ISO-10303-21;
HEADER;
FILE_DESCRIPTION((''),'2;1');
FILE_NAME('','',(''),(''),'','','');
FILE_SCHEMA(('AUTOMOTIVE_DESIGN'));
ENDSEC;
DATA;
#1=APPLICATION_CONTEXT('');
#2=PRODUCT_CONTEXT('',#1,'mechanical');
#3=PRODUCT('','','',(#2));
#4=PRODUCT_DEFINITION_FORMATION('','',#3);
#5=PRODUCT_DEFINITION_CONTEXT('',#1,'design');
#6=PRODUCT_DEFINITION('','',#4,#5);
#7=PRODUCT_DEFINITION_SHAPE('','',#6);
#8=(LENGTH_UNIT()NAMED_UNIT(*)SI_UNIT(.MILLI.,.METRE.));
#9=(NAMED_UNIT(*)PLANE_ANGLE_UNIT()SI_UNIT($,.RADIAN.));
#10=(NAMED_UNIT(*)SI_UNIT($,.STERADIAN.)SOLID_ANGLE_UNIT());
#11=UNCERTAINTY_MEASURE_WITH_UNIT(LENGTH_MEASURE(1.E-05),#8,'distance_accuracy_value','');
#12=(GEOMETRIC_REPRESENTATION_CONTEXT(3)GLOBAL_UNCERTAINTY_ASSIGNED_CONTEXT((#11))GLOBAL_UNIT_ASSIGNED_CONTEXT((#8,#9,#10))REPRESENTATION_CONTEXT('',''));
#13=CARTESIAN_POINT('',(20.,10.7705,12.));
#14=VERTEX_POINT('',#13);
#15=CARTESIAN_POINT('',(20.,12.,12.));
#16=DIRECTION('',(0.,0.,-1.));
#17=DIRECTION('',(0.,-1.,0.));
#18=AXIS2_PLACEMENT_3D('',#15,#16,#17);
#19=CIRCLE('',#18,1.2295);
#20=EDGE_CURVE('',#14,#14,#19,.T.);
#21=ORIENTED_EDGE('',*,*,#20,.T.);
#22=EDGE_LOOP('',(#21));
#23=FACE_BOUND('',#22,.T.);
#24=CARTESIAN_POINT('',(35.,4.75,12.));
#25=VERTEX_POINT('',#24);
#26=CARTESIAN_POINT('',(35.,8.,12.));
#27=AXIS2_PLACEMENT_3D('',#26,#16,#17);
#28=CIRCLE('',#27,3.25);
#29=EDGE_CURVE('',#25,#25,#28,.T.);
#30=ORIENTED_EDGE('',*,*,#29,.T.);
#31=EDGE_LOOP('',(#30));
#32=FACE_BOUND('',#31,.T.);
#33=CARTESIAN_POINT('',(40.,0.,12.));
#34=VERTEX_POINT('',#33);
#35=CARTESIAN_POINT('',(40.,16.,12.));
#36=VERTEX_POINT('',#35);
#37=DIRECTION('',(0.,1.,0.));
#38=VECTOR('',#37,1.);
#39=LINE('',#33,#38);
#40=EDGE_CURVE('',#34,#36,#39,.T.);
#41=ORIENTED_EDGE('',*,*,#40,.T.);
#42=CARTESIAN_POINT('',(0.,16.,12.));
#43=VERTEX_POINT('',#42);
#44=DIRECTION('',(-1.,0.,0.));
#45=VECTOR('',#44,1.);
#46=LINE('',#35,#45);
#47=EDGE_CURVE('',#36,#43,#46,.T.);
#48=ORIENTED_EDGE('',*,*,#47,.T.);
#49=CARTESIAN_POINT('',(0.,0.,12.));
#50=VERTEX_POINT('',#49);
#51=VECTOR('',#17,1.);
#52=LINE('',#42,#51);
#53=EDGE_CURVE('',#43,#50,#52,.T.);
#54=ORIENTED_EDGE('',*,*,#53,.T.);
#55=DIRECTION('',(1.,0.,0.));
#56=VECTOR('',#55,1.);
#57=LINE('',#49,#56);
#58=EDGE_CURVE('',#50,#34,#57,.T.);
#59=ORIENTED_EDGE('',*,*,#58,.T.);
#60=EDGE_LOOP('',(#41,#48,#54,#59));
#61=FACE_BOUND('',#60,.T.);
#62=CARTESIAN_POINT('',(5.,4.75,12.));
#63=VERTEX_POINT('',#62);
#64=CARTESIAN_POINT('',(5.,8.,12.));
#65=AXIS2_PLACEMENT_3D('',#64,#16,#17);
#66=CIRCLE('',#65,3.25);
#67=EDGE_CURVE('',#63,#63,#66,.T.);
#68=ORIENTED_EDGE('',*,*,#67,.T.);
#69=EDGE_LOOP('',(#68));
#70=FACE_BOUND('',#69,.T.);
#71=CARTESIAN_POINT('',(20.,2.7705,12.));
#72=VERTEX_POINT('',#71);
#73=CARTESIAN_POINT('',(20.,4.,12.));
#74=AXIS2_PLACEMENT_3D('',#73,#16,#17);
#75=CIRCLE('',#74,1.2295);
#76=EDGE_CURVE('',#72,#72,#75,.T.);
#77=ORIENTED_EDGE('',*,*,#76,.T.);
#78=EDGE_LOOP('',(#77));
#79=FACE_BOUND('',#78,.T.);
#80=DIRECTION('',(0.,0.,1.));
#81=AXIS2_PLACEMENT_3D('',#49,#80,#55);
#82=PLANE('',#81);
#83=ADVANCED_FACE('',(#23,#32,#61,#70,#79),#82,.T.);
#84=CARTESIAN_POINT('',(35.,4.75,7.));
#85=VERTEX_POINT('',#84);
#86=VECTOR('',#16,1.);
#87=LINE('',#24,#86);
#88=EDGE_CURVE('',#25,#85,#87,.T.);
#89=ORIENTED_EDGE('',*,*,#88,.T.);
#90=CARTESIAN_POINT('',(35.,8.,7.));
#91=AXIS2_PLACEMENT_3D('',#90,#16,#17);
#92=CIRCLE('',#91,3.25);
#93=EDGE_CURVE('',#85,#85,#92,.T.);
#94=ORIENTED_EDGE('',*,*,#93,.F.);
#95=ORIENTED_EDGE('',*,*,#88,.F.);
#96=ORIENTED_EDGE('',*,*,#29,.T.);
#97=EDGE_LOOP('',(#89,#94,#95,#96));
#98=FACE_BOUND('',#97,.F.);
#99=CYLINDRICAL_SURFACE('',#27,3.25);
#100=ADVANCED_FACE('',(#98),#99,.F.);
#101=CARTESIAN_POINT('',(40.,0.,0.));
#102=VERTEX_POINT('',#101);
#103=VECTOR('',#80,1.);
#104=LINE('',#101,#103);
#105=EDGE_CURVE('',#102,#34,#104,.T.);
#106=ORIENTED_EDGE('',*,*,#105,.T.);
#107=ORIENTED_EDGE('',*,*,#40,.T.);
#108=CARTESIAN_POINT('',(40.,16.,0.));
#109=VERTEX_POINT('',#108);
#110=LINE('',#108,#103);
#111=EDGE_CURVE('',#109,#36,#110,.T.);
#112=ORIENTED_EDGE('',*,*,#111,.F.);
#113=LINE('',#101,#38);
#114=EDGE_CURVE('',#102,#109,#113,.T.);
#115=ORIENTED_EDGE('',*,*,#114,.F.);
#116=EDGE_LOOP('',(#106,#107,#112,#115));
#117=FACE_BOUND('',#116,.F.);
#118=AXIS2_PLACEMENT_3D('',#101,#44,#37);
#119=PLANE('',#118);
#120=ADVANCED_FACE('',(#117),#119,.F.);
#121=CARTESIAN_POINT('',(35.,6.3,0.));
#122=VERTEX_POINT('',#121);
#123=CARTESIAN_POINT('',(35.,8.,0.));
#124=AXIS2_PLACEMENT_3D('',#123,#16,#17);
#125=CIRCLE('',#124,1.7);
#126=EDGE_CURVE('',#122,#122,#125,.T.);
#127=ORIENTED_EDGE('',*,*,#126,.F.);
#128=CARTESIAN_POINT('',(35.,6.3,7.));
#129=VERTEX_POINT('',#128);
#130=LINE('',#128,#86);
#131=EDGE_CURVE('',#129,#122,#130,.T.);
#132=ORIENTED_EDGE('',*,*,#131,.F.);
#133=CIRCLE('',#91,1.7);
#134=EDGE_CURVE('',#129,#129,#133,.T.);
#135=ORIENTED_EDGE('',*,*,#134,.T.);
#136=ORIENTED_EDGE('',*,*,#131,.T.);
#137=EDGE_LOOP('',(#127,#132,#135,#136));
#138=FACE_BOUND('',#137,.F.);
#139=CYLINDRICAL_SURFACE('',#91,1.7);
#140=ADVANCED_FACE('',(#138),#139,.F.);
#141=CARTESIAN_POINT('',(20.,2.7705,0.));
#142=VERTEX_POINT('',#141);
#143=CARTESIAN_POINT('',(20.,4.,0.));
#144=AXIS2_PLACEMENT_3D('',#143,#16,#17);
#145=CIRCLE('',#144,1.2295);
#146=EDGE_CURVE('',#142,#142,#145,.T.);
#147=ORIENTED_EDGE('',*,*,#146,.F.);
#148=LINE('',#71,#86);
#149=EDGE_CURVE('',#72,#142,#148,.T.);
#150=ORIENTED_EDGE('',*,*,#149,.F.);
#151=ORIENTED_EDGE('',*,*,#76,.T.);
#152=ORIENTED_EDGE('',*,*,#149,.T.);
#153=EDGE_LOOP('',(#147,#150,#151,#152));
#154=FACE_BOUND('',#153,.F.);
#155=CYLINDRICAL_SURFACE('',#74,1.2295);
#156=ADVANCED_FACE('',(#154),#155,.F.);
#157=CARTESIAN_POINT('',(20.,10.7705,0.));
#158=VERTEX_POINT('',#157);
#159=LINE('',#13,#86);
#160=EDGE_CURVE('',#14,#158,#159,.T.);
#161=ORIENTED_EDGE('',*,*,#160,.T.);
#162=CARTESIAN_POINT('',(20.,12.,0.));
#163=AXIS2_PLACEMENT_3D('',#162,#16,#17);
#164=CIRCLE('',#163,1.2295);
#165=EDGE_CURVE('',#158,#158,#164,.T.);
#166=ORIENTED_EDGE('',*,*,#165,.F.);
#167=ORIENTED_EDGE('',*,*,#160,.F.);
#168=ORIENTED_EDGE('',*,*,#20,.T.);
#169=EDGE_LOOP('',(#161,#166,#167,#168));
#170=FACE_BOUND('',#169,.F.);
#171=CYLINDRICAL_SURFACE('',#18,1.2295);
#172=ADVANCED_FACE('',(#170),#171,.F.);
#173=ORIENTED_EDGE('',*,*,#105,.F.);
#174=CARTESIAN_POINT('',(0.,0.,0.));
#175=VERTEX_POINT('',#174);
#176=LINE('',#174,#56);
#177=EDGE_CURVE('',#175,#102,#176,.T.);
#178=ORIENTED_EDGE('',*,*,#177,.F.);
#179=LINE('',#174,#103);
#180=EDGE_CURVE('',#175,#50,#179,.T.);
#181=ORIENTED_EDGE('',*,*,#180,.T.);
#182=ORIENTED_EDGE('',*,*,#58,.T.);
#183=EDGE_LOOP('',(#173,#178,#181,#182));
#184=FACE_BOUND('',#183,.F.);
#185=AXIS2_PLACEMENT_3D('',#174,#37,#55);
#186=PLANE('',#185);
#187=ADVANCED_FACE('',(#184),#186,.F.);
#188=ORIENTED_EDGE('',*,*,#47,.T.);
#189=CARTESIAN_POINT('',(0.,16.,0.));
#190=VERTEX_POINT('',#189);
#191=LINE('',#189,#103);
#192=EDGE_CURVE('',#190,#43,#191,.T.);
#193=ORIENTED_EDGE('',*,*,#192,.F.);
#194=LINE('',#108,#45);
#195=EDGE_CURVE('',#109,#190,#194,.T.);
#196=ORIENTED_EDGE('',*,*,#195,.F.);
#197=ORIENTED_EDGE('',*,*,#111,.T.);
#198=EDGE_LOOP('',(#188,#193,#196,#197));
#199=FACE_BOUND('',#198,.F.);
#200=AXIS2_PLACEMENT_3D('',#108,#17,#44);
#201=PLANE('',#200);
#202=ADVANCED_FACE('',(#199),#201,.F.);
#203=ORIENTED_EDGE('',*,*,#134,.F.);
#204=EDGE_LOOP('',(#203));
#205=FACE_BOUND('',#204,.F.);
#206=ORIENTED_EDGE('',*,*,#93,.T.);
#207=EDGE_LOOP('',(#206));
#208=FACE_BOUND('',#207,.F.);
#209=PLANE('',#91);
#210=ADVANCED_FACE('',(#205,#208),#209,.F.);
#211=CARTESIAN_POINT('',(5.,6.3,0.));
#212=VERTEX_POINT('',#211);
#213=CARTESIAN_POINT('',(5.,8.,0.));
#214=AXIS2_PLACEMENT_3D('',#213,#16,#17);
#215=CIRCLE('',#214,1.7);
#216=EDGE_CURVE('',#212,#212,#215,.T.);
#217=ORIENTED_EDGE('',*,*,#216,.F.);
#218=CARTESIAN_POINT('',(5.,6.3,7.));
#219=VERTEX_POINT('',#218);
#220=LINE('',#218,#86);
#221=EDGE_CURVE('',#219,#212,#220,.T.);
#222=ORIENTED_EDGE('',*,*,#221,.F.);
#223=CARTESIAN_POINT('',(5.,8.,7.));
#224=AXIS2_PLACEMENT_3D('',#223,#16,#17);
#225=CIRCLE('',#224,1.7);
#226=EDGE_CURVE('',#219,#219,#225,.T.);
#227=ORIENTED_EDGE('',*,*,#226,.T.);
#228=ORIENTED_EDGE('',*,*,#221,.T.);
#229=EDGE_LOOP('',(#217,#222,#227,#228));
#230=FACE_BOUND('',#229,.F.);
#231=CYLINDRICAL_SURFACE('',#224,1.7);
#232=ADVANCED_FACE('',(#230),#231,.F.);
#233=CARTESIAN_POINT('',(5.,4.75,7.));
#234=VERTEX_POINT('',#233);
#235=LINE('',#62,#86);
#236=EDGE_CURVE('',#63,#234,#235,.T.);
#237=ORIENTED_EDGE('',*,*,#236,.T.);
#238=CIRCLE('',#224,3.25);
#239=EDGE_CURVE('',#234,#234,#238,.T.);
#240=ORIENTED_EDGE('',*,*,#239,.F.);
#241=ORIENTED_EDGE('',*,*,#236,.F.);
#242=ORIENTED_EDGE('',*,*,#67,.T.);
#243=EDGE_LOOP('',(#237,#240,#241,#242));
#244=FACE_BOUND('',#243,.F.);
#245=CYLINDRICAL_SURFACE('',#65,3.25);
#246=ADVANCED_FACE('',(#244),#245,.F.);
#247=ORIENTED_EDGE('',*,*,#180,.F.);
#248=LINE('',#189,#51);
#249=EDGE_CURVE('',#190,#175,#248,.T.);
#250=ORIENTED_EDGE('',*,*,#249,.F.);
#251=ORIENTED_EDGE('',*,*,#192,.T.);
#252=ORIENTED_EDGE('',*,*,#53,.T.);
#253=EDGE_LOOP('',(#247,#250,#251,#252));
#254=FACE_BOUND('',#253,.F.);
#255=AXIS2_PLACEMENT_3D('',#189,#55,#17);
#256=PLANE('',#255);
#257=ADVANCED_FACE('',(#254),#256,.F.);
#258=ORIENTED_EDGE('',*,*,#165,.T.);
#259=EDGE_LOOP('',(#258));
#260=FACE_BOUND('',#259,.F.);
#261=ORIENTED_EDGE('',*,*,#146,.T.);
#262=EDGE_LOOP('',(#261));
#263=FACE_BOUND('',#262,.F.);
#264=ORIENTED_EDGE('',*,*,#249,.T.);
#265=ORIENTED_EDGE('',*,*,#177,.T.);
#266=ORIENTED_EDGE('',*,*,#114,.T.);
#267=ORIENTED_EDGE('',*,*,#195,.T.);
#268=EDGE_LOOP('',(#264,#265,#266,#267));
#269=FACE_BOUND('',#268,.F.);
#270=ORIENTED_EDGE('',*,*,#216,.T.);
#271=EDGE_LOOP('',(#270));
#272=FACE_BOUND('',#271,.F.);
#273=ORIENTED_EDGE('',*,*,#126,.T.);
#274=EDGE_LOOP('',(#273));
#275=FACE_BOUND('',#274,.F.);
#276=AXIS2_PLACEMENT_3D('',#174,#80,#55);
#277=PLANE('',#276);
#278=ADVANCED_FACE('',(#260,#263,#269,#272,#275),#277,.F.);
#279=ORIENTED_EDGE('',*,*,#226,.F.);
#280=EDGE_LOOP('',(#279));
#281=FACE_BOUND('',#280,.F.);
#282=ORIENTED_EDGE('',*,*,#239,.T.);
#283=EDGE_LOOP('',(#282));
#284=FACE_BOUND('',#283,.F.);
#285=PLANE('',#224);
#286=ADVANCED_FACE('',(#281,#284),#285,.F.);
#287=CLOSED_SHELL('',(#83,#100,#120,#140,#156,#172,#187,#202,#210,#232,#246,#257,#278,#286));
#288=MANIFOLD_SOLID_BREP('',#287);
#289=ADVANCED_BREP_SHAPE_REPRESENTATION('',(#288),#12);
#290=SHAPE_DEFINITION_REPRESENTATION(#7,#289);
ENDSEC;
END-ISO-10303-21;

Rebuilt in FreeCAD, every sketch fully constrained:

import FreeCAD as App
import Part
import Sketcher

V = App.Vector


def add_polygon(sketch, points):
    """Adds a closed chain of lines whose ends are joined by coincident constraints."""
    first, n = sketch.GeometryCount, len(points)
    for a, b in zip(points, points[1:] + points[:1]):
        sketch.addGeometry(Part.LineSegment(App.Vector(*a, 0), App.Vector(*b, 0)), False)
    for i in range(n):
        sketch.addConstraint(Sketcher.Constraint("Coincident", first + i, 2, first + (i + 1) % n, 1))

doc = App.newDocument("Part")
params = doc.addObject("Spreadsheet::Sheet", "Params")
for row, (alias, value) in enumerate([
    ("sketch1_width", "40 mm"),
    ("sketch1_height", "16 mm"),
    ("pad1_length", "12 mm"),
    ("hole_diameter", "2.459 mm"),
    ("sketch3_diameter", "3.4 mm"),
    ("hole2_diameter", "3.4 mm"),
    ("hole2_cbore_diameter", "6.5 mm"),
    ("hole2_cbore_depth", "5 mm"),
], start=1):
    params.set(f"A{row}", alias)
    params.set(f"B{row}", "=" + value)
    params.setAlias(f"B{row}", alias)

body = doc.addObject("PartDesign::Body", "Body")

# Sketch on XY plane
sketch1 = doc.addObject("Sketcher::SketchObject", "Sketch")
body.addObject(sketch1)
sketch1.AttachmentSupport = (doc.XY_Plane, [""])
sketch1.MapMode = "FlatFace"
add_polygon(sketch1, [(0, 16), (0, 0), (40, 0), (40, 16)])  # lines 0-3
sketch1.addConstraint(Sketcher.Constraint("Vertical", 0))
sketch1.addConstraint(Sketcher.Constraint("Horizontal", 1))
sketch1.addConstraint(Sketcher.Constraint("Vertical", 2))
sketch1.addConstraint(Sketcher.Constraint("Horizontal", 3))
sketch1.addConstraint(Sketcher.Constraint("Coincident", 0, 2, -1, 1))
sketch1.addConstraint(Sketcher.Constraint("DistanceX", 1, 1, 1, 2, 40.0))
sketch1.addConstraint(Sketcher.Constraint("DistanceY", 0, 2, 0, 1, 16.0))
sketch1.setExpression("Constraints[9]", "Params.sketch1_width")
sketch1.setExpression("Constraints[10]", "Params.sketch1_height")
pad1 = doc.addObject("PartDesign::Pad", "Pad")
body.addObject(pad1)
pad1.Profile = sketch1
pad1.setExpression("Length", "Params.pad1_length")

# Sketch on XY plane
sketch2 = doc.addObject("Sketcher::SketchObject", "Sketch001")
body.addObject(sketch2)
sketch2.AttachmentSupport = (doc.XY_Plane, [""])
sketch2.MapMode = "FlatFace"
sketch2.AttachmentOffset = App.Placement(V(0, 0, 12), App.Rotation())
sketch2.addGeometry(Part.Circle(V(20, 12, 0), V(0, 0, 1), 1.2), False)
sketch2.addGeometry(Part.Circle(V(20, 4, 0), V(0, 0, 1), 1.2), False)
sketch2.addConstraint(Sketcher.Constraint("Equal", 0, 1))
sketch2.addConstraint(Sketcher.Constraint("Vertical", 0, 3, 1, 3))
sketch2.addConstraint(Sketcher.Constraint("Diameter", 0, 2.459))
sketch2.addConstraint(Sketcher.Constraint("DistanceX", -1, 1, 0, 3, 20.0))
sketch2.addConstraint(Sketcher.Constraint("DistanceY", -1, 1, 0, 3, 12.0))
sketch2.addConstraint(Sketcher.Constraint("DistanceY", -1, 1, 1, 3, 4.0))
doc.recompute()
hole = doc.addObject("PartDesign::Hole", "Hole")
body.addObject(hole)
hole.Profile = sketch2
hole.ThreadType = "None"
hole.setExpression("Diameter", "Params.hole_diameter")
hole.DepthType = "ThroughAll"

# Sketch on XY plane
sketch3 = doc.addObject("Sketcher::SketchObject", "Sketch002")
body.addObject(sketch3)
sketch3.AttachmentSupport = (doc.XY_Plane, [""])
sketch3.MapMode = "FlatFace"
sketch3.AttachmentOffset = App.Placement(V(0, 0, 12), App.Rotation())
sketch3.addGeometry(Part.Circle(V(5, 8, 0), V(0, 0, 1), 1.7), False)
sketch3.addGeometry(Part.Circle(V(35, 8, 0), V(0, 0, 1), 1.7), False)
sketch3.addConstraint(Sketcher.Constraint("Equal", 0, 1))
sketch3.addConstraint(Sketcher.Constraint("Horizontal", 0, 3, 1, 3))
sketch3.addConstraint(Sketcher.Constraint("Diameter", 0, 3.4))
sketch3.addConstraint(Sketcher.Constraint("DistanceX", -1, 1, 0, 3, 5.0))
sketch3.addConstraint(Sketcher.Constraint("DistanceY", -1, 1, 0, 3, 8.0))
sketch3.addConstraint(Sketcher.Constraint("DistanceX", -1, 1, 1, 3, 35.0))
sketch3.setExpression("Constraints[2]", "Params.sketch3_diameter")
doc.recompute()
hole2 = doc.addObject("PartDesign::Hole", "Hole001")
body.addObject(hole2)
hole2.Profile = sketch3
hole2.ThreadType = "None"
hole2.setExpression("Diameter", "Params.hole2_diameter")
hole2.DepthType = "ThroughAll"
hole2.HoleCutType = "Counterbore"
hole2.setExpression("HoleCutDiameter", "Params.hole2_cbore_diameter")
hole2.setExpression("HoleCutDepth", "Params.hole2_cbore_depth")

doc.recompute()
